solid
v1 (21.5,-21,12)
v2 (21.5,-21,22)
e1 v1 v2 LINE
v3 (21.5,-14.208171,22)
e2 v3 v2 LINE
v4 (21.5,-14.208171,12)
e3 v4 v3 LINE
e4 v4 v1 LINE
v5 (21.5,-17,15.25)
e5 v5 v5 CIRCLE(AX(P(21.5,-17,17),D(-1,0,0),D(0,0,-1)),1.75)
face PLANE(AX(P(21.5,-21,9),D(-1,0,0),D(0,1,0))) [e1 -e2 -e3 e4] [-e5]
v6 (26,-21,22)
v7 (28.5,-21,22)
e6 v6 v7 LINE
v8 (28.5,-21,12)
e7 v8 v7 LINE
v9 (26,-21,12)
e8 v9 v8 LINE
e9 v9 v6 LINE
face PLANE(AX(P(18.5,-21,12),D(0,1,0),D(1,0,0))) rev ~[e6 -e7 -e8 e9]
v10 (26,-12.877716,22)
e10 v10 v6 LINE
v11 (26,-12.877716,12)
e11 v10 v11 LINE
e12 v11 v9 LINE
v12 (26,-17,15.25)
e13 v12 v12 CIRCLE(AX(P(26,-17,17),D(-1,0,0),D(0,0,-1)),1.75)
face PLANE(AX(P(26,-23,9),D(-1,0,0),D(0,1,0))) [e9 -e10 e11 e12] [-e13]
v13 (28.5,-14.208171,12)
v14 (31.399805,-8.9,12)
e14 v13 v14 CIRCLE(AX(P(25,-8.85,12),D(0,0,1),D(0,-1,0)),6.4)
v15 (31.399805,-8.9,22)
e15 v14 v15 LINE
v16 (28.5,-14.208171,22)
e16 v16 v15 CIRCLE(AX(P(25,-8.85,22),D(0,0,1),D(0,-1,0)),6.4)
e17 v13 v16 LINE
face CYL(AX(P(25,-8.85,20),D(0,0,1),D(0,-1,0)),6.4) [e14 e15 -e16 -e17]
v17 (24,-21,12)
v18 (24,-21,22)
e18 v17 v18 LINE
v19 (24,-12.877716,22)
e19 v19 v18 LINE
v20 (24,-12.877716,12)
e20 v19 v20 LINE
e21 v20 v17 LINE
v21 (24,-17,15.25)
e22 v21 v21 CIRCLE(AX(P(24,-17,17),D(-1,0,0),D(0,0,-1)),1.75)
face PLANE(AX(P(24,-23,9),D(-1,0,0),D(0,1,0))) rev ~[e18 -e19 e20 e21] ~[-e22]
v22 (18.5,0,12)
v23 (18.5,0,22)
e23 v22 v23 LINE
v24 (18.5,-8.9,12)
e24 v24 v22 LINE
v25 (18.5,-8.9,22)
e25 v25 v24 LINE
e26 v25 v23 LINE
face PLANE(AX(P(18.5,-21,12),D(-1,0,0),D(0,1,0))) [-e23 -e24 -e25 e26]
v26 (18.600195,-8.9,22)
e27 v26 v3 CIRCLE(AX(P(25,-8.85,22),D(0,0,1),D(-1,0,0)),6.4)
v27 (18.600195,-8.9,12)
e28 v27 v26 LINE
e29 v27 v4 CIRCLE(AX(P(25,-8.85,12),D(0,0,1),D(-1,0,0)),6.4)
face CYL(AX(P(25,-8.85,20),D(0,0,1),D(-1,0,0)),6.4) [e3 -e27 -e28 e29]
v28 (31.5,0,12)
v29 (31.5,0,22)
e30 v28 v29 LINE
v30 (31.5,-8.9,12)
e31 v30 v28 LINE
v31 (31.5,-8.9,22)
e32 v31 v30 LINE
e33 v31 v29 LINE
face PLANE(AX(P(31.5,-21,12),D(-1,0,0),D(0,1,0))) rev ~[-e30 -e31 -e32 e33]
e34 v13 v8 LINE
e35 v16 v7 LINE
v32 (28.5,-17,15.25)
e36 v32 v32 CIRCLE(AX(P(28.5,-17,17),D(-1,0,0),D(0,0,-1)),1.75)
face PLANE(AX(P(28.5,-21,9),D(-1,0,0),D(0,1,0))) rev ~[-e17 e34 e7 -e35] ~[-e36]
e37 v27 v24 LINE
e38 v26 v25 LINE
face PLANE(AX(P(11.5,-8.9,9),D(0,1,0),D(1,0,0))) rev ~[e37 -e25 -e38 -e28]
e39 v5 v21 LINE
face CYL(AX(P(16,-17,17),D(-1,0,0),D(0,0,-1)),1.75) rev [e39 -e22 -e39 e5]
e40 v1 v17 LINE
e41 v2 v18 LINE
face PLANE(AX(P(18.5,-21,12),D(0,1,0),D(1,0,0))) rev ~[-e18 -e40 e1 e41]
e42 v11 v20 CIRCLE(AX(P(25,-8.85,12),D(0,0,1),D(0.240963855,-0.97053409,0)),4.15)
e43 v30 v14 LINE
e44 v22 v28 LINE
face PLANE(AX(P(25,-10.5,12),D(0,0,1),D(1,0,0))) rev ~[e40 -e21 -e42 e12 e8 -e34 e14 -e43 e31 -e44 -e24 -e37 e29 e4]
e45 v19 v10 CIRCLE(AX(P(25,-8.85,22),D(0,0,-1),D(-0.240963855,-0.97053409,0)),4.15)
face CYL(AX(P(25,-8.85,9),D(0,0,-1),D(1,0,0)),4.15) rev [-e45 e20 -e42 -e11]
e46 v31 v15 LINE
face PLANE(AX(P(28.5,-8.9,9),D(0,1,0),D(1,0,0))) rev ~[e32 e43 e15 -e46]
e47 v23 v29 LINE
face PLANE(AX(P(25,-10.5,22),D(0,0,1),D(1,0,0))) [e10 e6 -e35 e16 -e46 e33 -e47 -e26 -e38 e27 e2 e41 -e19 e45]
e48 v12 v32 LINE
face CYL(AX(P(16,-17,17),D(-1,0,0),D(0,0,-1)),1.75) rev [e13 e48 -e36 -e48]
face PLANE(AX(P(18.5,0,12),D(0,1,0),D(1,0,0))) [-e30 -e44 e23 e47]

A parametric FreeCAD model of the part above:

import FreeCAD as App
import Part
import Sketcher

V = App.Vector

doc = App.newDocument("Part")
body = doc.addObject("PartDesign::Body", "Body")

# Sketch on XZ plane
sketch1 = body.newObject("Sketcher::SketchObject", "Sketch")
sketch1.AttachmentSupport = (doc.getObject("XZ_Plane"), [""])
sketch1.MapMode = "FlatFace"
sketch1.AttachmentOffset = App.Placement(V(0, 0, 6.85), App.Rotation())
sketch1.addGeometry([
    Part.LineSegment(V(25, 19, 0), V(25, -3, 0)),
    Part.LineSegment(V(25, -3, 0), V(19, -3, 0)),
    Part.LineSegment(V(19, -3, 0), V(19, 19, 0)),
    Part.LineSegment(V(19, 19, 0), V(25, 19, 0)),
], False)
sketch1.addGeometry(Part.LineSegment(V(25, -3, 0), V(25, 19, 0)), True)  # axis
sketch1.addConstraint([
    Sketcher.Constraint("Coincident", 0, 2, 1, 1),
    Sketcher.Constraint("Coincident", 1, 2, 2, 1),
    Sketcher.Constraint("Coincident", 2, 2, 3, 1),
    Sketcher.Constraint("Coincident", 3, 2, 0, 1),
    Sketcher.Constraint("Vertical", 0),
    Sketcher.Constraint("Horizontal", 1),
    Sketcher.Constraint("Vertical", 2),
    Sketcher.Constraint("Horizontal", 3),
    Sketcher.Constraint("Vertical", 4),
    Sketcher.Constraint("Coincident", 4, 1, 0, 2),
    Sketcher.Constraint("Horizontal", 2, 2, 4, 2),
    Sketcher.Constraint("DistanceY", 0, 2, 0, 1, 22.0),
    Sketcher.Constraint("DistanceX", 1, 2, 1, 1, 6.4),
    Sketcher.Constraint("DistanceX", -1, 1, 0, 2, 25.0),
    Sketcher.Constraint("DistanceY", 0, 2, -1, 1, 3.0),
])
revolution = body.newObject("PartDesign::Revolution", "Revolution")
revolution.Profile = sketch1
revolution.ReferenceAxis = (sketch1, ["Axis0"])
revolution.Angle = 90
body2 = doc.addObject("PartDesign::Body", "Body001")

# Sketch on XY plane
sketch2 = body2.newObject("Sketcher::SketchObject", "Sketch001")
sketch2.AttachmentSupport = (doc.getObject("XY_Plane001"), [""])
sketch2.MapMode = "FlatFace"
sketch2.AttachmentOffset = App.Placement(V(0, 0, -3), App.Rotation())
sketch2.addGeometry([
    Part.LineSegment(V(12, -7, 0), V(12, -19, 0)),
    Part.LineSegment(V(12, -19, 0), V(22, -19, 0)),
    Part.LineSegment(V(22, -19, 0), V(22, -7, 0)),
    Part.LineSegment(V(22, -7, 0), V(12, -7, 0)),
], False)
sketch2.addConstraint([
    Sketcher.Constraint("Coincident", 0, 2, 1, 1),
    Sketcher.Constraint("Coincident", 1, 2, 2, 1),
    Sketcher.Constraint("Coincident", 2, 2, 3, 1),
    Sketcher.Constraint("Coincident", 3, 2, 0, 1),
    Sketcher.Constraint("Vertical", 0),
    Sketcher.Constraint("Horizontal", 1),
    Sketcher.Constraint("Vertical", 2),
    Sketcher.Constraint("Horizontal", 3),
    Sketcher.Constraint("DistanceX", 1, 1, 1, 2, 10.0),
    Sketcher.Constraint("DistanceY", 0, 2, 0, 1, 12.1),
    Sketcher.Constraint("DistanceY", 0, 2, -1, 1, 19.0),
    Sketcher.Constraint("DistanceX", -1, 1, 0, 2, 11.5),
])
pad1 = body2.newObject("PartDesign::Pad", "Pad")
pad1.Profile = sketch2
pad1.Length = 22
doc.recompute()

boolean = body2.newObject("PartDesign::Boolean", "Boolean")
boolean.Type = "Cut"
boolean.addObjects([body])
body3 = doc.addObject("PartDesign::Body", "Body002")

# Sketch on YZ plane
sketch3 = body3.newObject("Sketcher::SketchObject", "Sketch002")
sketch3.AttachmentSupport = (doc.getObject("YZ_Plane002"), [""])
sketch3.MapMode = "FlatFace"
sketch3.AttachmentOffset = App.Placement(V(0, 0, 25), App.Rotation())
sketch3.addGeometry([
    Part.LineSegment(V(-7, 19, 0), V(-7, -3, 0)),
    Part.LineSegment(V(-7, -3, 0), V(-13, -3, 0)),
    Part.LineSegment(V(-13, -3, 0), V(-13, 19, 0)),
    Part.LineSegment(V(-13, 19, 0), V(-7, 19, 0)),
], False)
sketch3.addGeometry(Part.LineSegment(V(-7, -3, 0), V(-7, 19, 0)), True)  # axis
sketch3.addConstraint([
    Sketcher.Constraint("Coincident", 0, 2, 1, 1),
    Sketcher.Constraint("Coincident", 1, 2, 2, 1),
    Sketcher.Constraint("Coincident", 2, 2, 3, 1),
    Sketcher.Constraint("Coincident", 3, 2, 0, 1),
    Sketcher.Constraint("Vertical", 0),
    Sketcher.Constraint("Horizontal", 1),
    Sketcher.Constraint("Vertical", 2),
    Sketcher.Constraint("Horizontal", 3),
    Sketcher.Constraint("Vertical", 4),
    Sketcher.Constraint("Coincident", 4, 1, 0, 2),
    Sketcher.Constraint("Horizontal", 2, 2, 4, 2),
    Sketcher.Constraint("DistanceY", 0, 2, 0, 1, 22.0),
    Sketcher.Constraint("DistanceX", 1, 2, 1, 1, 6.4),
    Sketcher.Constraint("DistanceY", 0, 2, -1, 1, 3.0),
    Sketcher.Constraint("DistanceX", 0, 2, -1, 1, 6.85),
])
revolution2 = body3.newObject("PartDesign::Revolution", "Revolution001")
revolution2.Profile = sketch3
revolution2.ReferenceAxis = (sketch3, ["Axis0"])
revolution2.Angle = 90
body4 = doc.addObject("PartDesign::Body", "Body003")

# Sketch on XY plane
sketch4 = body4.newObject("Sketcher::SketchObject", "Sketch003")
sketch4.AttachmentSupport = (doc.getObject("XY_Plane003"), [""])
sketch4.MapMode = "FlatFace"
sketch4.AttachmentOffset = App.Placement(V(0, 0, -3), App.Rotation())
sketch4.addGeometry([
    Part.LineSegment(V(28, -7, 0), V(28, -19, 0)),
    Part.LineSegment(V(28, -19, 0), V(38, -19, 0)),
    Part.LineSegment(V(38, -19, 0), V(38, -7, 0)),
    Part.LineSegment(V(38, -7, 0), V(28, -7, 0)),
], False)
sketch4.addConstraint([
    Sketcher.Constraint("Coincident", 0, 2, 1, 1),
    Sketcher.Constraint("Coincident", 1, 2, 2, 1),
    Sketcher.Constraint("Coincident", 2, 2, 3, 1),
    Sketcher.Constraint("Coincident", 3, 2, 0, 1),
    Sketcher.Constraint("Vertical", 0),
    Sketcher.Constraint("Horizontal", 1),
    Sketcher.Constraint("Vertical", 2),
    Sketcher.Constraint("Horizontal", 3),
    Sketcher.Constraint("DistanceX", 1, 1, 1, 2, 10.0),
    Sketcher.Constraint("DistanceY", 0, 2, 0, 1, 12.1),
    Sketcher.Constraint("DistanceY", 0, 2, -1, 1, 19.0),
    Sketcher.Constraint("DistanceX", -1, 1, 0, 2, 28.5),
])
pad2 = body4.newObject("PartDesign::Pad", "Pad001")
pad2.Profile = sketch4
pad2.Length = 22
doc.recompute()

boolean2 = body4.newObject("PartDesign::Boolean", "Boolean001")
boolean2.Type = "Cut"
boolean2.addObjects([body3])
body5 = doc.addObject("PartDesign::Body", "Body004")

# Sketch on XY plane
sketch5 = body5.newObject("Sketcher::SketchObject", "Sketch004")
sketch5.AttachmentSupport = (doc.getObject("XY_Plane004"), [""])
sketch5.MapMode = "FlatFace"
sketch5.AttachmentOffset = App.Placement(V(0, 0, -3), App.Rotation())
sketch5.addGeometry([
    Part.LineSegment(V(24, -10, 0), V(24, -21, 0)),
    Part.LineSegment(V(24, -21, 0), V(26, -21, 0)),
    Part.LineSegment(V(26, -21, 0), V(26, -10, 0)),
    Part.LineSegment(V(26, -10, 0), V(24, -10, 0)),
], False)
sketch5.addConstraint([
    Sketcher.Constraint("Coincident", 0, 2, 1, 1),
    Sketcher.Constraint("Coincident", 1, 2, 2, 1),
    Sketcher.Constraint("Coincident", 2, 2, 3, 1),
    Sketcher.Constraint("Coincident", 3, 2, 0, 1),
    Sketcher.Constraint("Vertical", 0),
    Sketcher.Constraint("Horizontal", 1),
    Sketcher.Constraint("Vertical", 2),
    Sketcher.Constraint("Horizontal", 3),
    Sketcher.Constraint("DistanceX", 1, 1, 1, 2, 2.0),
    Sketcher.Constraint("DistanceY", 0, 2, 0, 1, 11.0),
    Sketcher.Constraint("DistanceX", -1, 1, 0, 2, 24.0),
    Sketcher.Constraint("DistanceY", 0, 2, -1, 1, 21.0),
])
pad3 = body5.newObject("PartDesign::Pad", "Pad002")
pad3.Profile = sketch5
pad3.Length = 22
body6 = doc.addObject("PartDesign::Body", "Body005")

# Sketch on YZ plane
sketch6 = body6.newObject("Sketcher::SketchObject", "Sketch005")
sketch6.AttachmentSupport = (doc.getObject("YZ_Plane005"), [""])
sketch6.MapMode = "FlatFace"
sketch6.AttachmentOffset = App.Placement(V(0, 0, 16), App.Rotation())
sketch6.addGeometry(Part.Circle(V(-15, 5, 0), V(0, 0, 1), 1.8), False)
sketch6.addConstraint([
    Sketcher.Constraint("Diameter", 0, 3.5),
    Sketcher.Constraint("DistanceX", 0, 3, -1, 1, 15.0),
    Sketcher.Constraint("DistanceY", -1, 1, 0, 3, 5.0),
])
pad4 = body6.newObject("PartDesign::Pad", "Pad003")
pad4.Profile = sketch6
pad4.Length = 18
body7 = doc.addObject("PartDesign::Body", "Body006")

# Sketch on XY plane
sketch7 = body7.newObject("Sketcher::SketchObject", "Sketch006")
sketch7.AttachmentSupport = (doc.getObject("XY_Plane006"), [""])
sketch7.MapMode = "FlatFace"
sketch7.AttachmentOffset = App.Placement(V(0, 0, -3), App.Rotation())
sketch7.addGeometry(Part.Circle(V(25, -6.8, 0), V(0, 0, 1), 4.2), False)
sketch7.addConstraint([
    Sketcher.Constraint("Diameter", 0, 8.3),
    Sketcher.Constraint("DistanceX", -1, 1, 0, 3, 25.0),
    Sketcher.Constraint("DistanceY", 0, 3, -1, 1, 6.85),
])
pad5 = body7.newObject("PartDesign::Pad", "Pad004")
pad5.Profile = sketch7
pad5.Length = 22
body8 = doc.addObject("PartDesign::Body", "Body007")

# Sketch on XY plane
sketch8 = body8.newObject("Sketcher::SketchObject", "Sketch007")
sketch8.AttachmentSupport = (doc.getObject("XY_Plane007"), [""])
sketch8.MapMode = "FlatFace"
sketch8.addGeometry([
    Part.LineSegment(V(18, 2, 0), V(18, -19, 0)),
    Part.LineSegment(V(18, -19, 0), V(32, -19, 0)),
    Part.LineSegment(V(32, -19, 0), V(32, 2, 0)),
    Part.LineSegment(V(32, 2, 0), V(18, 2, 0)),
], False)
sketch8.addConstraint([
    Sketcher.Constraint("Coincident", 0, 2, 1, 1),
    Sketcher.Constraint("Coincident", 1, 2, 2, 1),
    Sketcher.Constraint("Coincident", 2, 2, 3, 1),
    Sketcher.Constraint("Coincident", 3, 2, 0, 1),
    Sketcher.Constraint("Vertical", 0),
    Sketcher.Constraint("Horizontal", 1),
    Sketcher.Constraint("Vertical", 2),
    Sketcher.Constraint("Horizontal", 3),
    Sketcher.Constraint("DistanceX", 1, 1, 1, 2, 13.0),
    Sketcher.Constraint("DistanceY", 0, 2, 0, 1, 21.0),
    Sketcher.Constraint("DistanceY", 0, 2, -1, 1, 19.0),
    Sketcher.Constraint("DistanceX", -1, 1, 0, 2, 18.5),
])
pad6 = body8.newObject("PartDesign::Pad", "Pad005")
pad6.Profile = sketch8
pad6.Length = 10
doc.recompute()

boolean3 = body8.newObject("PartDesign::Boolean", "Boolean002")
boolean3.Type = "Cut"
boolean3.addObjects([body7])
doc.recompute()

boolean4 = body8.newObject("PartDesign::Boolean", "Boolean003")
boolean4.Type = "Cut"
boolean4.addObjects([body6])
doc.recompute()

boolean5 = body8.newObject("PartDesign::Boolean", "Boolean004")
boolean5.Type = "Cut"
boolean5.addObjects([body5])
doc.recompute()

boolean6 = body8.newObject("PartDesign::Boolean", "Boolean005")
boolean6.Type = "Cut"
boolean6.addObjects([body4])
doc.recompute()

boolean7 = body8.newObject("PartDesign::Boolean", "Boolean006")
boolean7.Type = "Cut"
boolean7.addObjects([body2])
body9 = doc.addObject("PartDesign::Body", "Body008")
doc.recompute()

body8.Placement = App.Placement(V(0, -2, 12), App.Rotation(V(0, 0, 1), 0))
boolean8 = body9.newObject("PartDesign::Boolean", "Boolean007")
boolean8.Type = "Fuse"
boolean8.addObjects([body8])

doc.recompute()
